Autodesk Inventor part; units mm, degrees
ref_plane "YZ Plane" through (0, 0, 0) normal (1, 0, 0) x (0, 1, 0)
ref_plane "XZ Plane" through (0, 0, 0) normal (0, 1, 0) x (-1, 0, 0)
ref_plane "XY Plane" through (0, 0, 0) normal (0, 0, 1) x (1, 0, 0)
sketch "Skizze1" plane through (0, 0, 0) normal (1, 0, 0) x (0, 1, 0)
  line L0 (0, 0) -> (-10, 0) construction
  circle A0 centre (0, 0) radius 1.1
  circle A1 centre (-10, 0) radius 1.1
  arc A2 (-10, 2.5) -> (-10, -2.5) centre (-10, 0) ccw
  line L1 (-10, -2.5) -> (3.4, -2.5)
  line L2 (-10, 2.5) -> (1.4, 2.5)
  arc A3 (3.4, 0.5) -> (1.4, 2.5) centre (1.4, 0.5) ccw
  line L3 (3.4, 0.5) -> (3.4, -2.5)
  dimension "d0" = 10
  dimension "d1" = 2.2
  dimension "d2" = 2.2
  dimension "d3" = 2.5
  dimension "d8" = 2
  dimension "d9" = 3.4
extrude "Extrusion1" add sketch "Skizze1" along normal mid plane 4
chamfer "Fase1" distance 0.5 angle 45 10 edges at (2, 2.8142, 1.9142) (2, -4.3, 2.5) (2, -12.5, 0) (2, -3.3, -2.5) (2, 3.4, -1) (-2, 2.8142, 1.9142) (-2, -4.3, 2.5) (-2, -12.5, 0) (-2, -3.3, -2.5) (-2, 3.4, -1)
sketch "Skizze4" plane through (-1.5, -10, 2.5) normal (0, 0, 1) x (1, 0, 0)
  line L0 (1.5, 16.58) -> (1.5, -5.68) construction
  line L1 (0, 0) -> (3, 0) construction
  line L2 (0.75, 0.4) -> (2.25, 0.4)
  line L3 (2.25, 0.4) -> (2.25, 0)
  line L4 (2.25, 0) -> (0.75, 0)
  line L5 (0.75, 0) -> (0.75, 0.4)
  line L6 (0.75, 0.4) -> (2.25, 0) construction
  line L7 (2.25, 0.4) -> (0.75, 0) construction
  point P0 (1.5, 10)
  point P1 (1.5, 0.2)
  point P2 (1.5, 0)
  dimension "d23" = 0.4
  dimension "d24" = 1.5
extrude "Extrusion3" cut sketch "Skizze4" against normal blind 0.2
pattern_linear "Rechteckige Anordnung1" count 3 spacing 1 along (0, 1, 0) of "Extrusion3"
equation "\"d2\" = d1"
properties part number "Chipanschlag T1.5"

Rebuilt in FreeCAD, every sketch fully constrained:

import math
import FreeCAD as App
import Part
import Sketcher


def edges_at(feature, points):
    """Names of the edges that pass closest to the given points."""
    edges = feature.Shape.Edges
    near = lambda p: min(range(len(edges)), key=lambda i: edges[i].distToShape(Part.Vertex(*p))[0])
    return sorted({f"Edge{near(p) + 1}" for p in points})


def add_polygon(sketch, points):
    """Adds a closed chain of lines whose ends are joined by coincident constraints."""
    first, n = sketch.GeometryCount, len(points)
    for a, b in zip(points, points[1:] + points[:1]):
        sketch.addGeometry(Part.LineSegment(App.Vector(*a, 0), App.Vector(*b, 0)), False)
    for i in range(n):
        sketch.addConstraint(Sketcher.Constraint("Coincident", first + i, 2, first + (i + 1) % n, 1))

doc = App.newDocument("Part")
body = doc.addObject("PartDesign::Body", "Body")

# Sketch on YZ plane
sketch1 = body.newObject("Sketcher::SketchObject", "Sketch")
sketch1.AttachmentSupport = (doc.getObject("YZ_Plane"), [""])
sketch1.MapMode = "FlatFace"
sketch1.addGeometry(Part.LineSegment(App.Vector(1.4, 2.5, 0), App.Vector(-10, 2.5, 0)), False)
sketch1.addGeometry(Part.ArcOfCircle(Part.Circle(App.Vector(-10, 0, 0), App.Vector(0, 0, 1), 2.5), math.radians(90), math.radians(270)), False)
sketch1.addGeometry(Part.LineSegment(App.Vector(-10, -2.5, 0), App.Vector(3.4, -2.5, 0)), False)
sketch1.addGeometry(Part.LineSegment(App.Vector(3.4, -2.5, 0), App.Vector(3.4, 0.5, 0)), False)
sketch1.addGeometry(Part.ArcOfCircle(Part.Circle(App.Vector(1.4, 0.5, 0), App.Vector(0, 0, 1), 2), math.radians(0), math.radians(90)), False)
sketch1.addGeometry(Part.Circle(App.Vector(-10, 0, 0), App.Vector(0, 0, 1), 1.1), False)
sketch1.addGeometry(Part.Circle(App.Vector(0, 0, 0), App.Vector(0, 0, 1), 1.1), False)
sketch1.addConstraint(Sketcher.Constraint("Tangent", 0, 2, 1, 1))
sketch1.addConstraint(Sketcher.Constraint("Tangent", 1, 2, 2, 1))
sketch1.addConstraint(Sketcher.Constraint("Coincident", 2, 2, 3, 1))
sketch1.addConstraint(Sketcher.Constraint("Tangent", 3, 2, 4, 1))
sketch1.addConstraint(Sketcher.Constraint("Tangent", 4, 2, 0, 1))
sketch1.addConstraint(Sketcher.Constraint("Horizontal", 0))
sketch1.addConstraint(Sketcher.Constraint("Horizontal", 2))
sketch1.addConstraint(Sketcher.Constraint("Vertical", 3))
sketch1.addConstraint(Sketcher.Constraint("Coincident", 6, 3, -1, 1))
sketch1.addConstraint(Sketcher.Constraint("Coincident", 5, 3, 1, 3))
sketch1.addConstraint(Sketcher.Constraint("Equal", 5, 6))
sketch1.addConstraint(Sketcher.Constraint("PointOnObject", 1, 3, -1))
sketch1.addConstraint(Sketcher.Constraint("Radius", 4, 2.0))
sketch1.addConstraint(Sketcher.Constraint("Diameter", 5, 2.2))
sketch1.addConstraint(Sketcher.Constraint("Radius", 1, 2.5))
sketch1.addConstraint(Sketcher.Constraint("DistanceX", 1, 3, -1, 1, 10.0))
sketch1.addConstraint(Sketcher.Constraint("DistanceX", -1, 1, 2, 2, 3.4))
pad1 = body.newObject("PartDesign::Pad", "Pad")
pad1.Profile = sketch1
pad1.Length = 4
pad1.Midplane = True
doc.recompute()

chamfer = body.newObject("PartDesign::Chamfer", "Chamfer")
chamfer.Base = (pad1, edges_at(pad1, [
    (2, 2.814, 1.914),
    (2, -4.3, 2.5),
    (2, -12.5, 0),
    (2, -3.3, -2.5),
    (2, 3.4, -1),
    (-2, 2.814, 1.914),
    (-2, -4.3, 2.5),
    (-2, -12.5, 0),
    (-2, -3.3, -2.5),
    (-2, 3.4, -1),
]))
chamfer.Size = 0.5

# Sketch on XY plane
sketch2 = body.newObject("Sketcher::SketchObject", "Sketch001")
sketch2.AttachmentSupport = (doc.getObject("XY_Plane"), [""])
sketch2.MapMode = "FlatFace"
sketch2.AttachmentOffset = App.Placement(App.Vector(0, 0, 2.5), App.Rotation())
add_polygon(sketch2, [(0.75, -9.6), (-0.75, -9.6), (-0.75, -10), (0.75, -10)])  # lines 0-3
sketch2.addConstraint(Sketcher.Constraint("Horizontal", 0))
sketch2.addConstraint(Sketcher.Constraint("Vertical", 1))
sketch2.addConstraint(Sketcher.Constraint("Horizontal", 2))
sketch2.addConstraint(Sketcher.Constraint("Vertical", 3))
sketch2.addConstraint(Sketcher.Constraint("DistanceX", 0, 2, 0, 1, 1.5))
sketch2.addConstraint(Sketcher.Constraint("DistanceY", 1, 2, 1, 1, 0.4))
sketch2.addConstraint(Sketcher.Constraint("DistanceY", 1, 2, -1, 1, 10.0))
sketch2.addConstraint(Sketcher.Constraint("DistanceX", 0, 2, -1, 1, 0.75))
pocket1 = body.newObject("PartDesign::Pocket", "Pocket")
pocket1.Profile = sketch2
pocket1.Length = 0.2
doc.recompute()

linearpattern = body.newObject("PartDesign::LinearPattern", "LinearPattern")
linearpattern.Originals = [pocket1]
linearpattern.Direction = (doc.getObject("Y_Axis"), [""])
linearpattern.Mode = "offset"
linearpattern.Offset = 1
linearpattern.Occurrences = 3
body.Tip = linearpattern

doc.recompute()
